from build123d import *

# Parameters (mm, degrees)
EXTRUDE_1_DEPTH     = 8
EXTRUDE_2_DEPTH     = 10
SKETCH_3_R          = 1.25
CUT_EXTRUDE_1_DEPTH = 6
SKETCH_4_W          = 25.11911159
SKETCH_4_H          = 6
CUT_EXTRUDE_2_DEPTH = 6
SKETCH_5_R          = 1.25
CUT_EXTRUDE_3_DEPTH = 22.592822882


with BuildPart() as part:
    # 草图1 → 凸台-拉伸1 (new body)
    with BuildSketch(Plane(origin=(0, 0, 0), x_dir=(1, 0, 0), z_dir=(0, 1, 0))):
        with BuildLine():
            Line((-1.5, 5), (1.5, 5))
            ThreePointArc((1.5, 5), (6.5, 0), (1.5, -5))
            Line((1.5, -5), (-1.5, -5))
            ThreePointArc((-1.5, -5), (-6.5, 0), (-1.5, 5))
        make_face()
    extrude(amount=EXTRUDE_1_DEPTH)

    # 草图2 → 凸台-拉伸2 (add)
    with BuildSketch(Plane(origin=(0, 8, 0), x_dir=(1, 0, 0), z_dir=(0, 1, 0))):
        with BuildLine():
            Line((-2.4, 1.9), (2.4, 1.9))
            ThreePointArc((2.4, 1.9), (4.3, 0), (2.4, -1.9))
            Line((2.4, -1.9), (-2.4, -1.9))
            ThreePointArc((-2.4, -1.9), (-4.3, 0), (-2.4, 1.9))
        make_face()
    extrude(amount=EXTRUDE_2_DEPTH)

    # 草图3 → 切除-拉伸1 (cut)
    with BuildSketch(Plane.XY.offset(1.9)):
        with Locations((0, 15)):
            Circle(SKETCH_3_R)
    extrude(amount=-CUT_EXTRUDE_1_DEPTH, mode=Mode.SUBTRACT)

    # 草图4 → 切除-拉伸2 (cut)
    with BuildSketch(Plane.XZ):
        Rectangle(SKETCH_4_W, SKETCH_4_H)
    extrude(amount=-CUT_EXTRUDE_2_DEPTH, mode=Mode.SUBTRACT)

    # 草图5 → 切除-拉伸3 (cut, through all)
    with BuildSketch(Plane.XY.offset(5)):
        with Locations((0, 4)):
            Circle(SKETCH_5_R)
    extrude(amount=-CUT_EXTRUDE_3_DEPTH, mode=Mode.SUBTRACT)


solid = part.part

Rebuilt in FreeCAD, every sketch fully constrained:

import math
import FreeCAD as App
import Part
import Sketcher

V = App.Vector


def add_polygon(sketch, points):
    """Adds a closed chain of lines whose ends are joined by coincident constraints."""
    first, n = sketch.GeometryCount, len(points)
    for a, b in zip(points, points[1:] + points[:1]):
        sketch.addGeometry(Part.LineSegment(App.Vector(*a, 0), App.Vector(*b, 0)), False)
    for i in range(n):
        sketch.addConstraint(Sketcher.Constraint("Coincident", first + i, 2, first + (i + 1) % n, 1))

doc = App.newDocument("Part")
body = doc.addObject("PartDesign::Body", "Body")

# Sketch on XZ plane
sketch1 = body.newObject("Sketcher::SketchObject", "Sketch")
sketch1.AttachmentSupport = (doc.getObject("XZ_Plane"), [""])
sketch1.MapMode = "FlatFace"
sketch1.addGeometry(Part.LineSegment(V(1.5, -5, 0), V(-1.5, -5, 0)), False)
sketch1.addGeometry(Part.ArcOfCircle(Part.Circle(V(-1.5, 0, 0), V(0, 0, 1), 5), math.radians(90), math.radians(270)), False)
sketch1.addGeometry(Part.LineSegment(V(-1.5, 5, 0), V(1.5, 5, 0)), False)
sketch1.addGeometry(Part.ArcOfCircle(Part.Circle(V(1.5, 0, 0), V(0, 0, 1), 5), math.radians(-90), math.radians(90)), False)
sketch1.addConstraint(Sketcher.Constraint("Tangent", 0, 2, 1, 2))
sketch1.addConstraint(Sketcher.Constraint("Tangent", 1, 1, 2, 1))
sketch1.addConstraint(Sketcher.Constraint("Tangent", 2, 2, 3, 2))
sketch1.addConstraint(Sketcher.Constraint("Tangent", 3, 1, 0, 1))
sketch1.addConstraint(Sketcher.Constraint("Horizontal", 0))
sketch1.addConstraint(Sketcher.Constraint("Horizontal", 2))
sketch1.addConstraint(Sketcher.Constraint("Symmetric", 1, 3, 3, 3, -1, 1))
sketch1.addConstraint(Sketcher.Constraint("Radius", 1, 5.0))
sketch1.addConstraint(Sketcher.Constraint("DistanceX", 0, 2, 0, 1, 3.0))
pad1 = body.newObject("PartDesign::Pad", "Pad")
pad1.Profile = sketch1
pad1.Length = 8
pad1.Reversed = True

# Sketch on XZ plane
sketch2 = body.newObject("Sketcher::SketchObject", "Sketch001")
sketch2.AttachmentSupport = (doc.getObject("XZ_Plane"), [""])
sketch2.MapMode = "FlatFace"
sketch2.AttachmentOffset = App.Placement(V(0, 0, -8), App.Rotation())
sketch2.addGeometry(Part.LineSegment(V(2.4, -1.9, 0), V(-2.4, -1.9, 0)), False)
sketch2.addGeometry(Part.ArcOfCircle(Part.Circle(V(-2.4, 0, 0), V(0, 0, 1), 1.9), math.radians(90), math.radians(270)), False)
sketch2.addGeometry(Part.LineSegment(V(-2.4, 1.9, 0), V(2.4, 1.9, 0)), False)
sketch2.addGeometry(Part.ArcOfCircle(Part.Circle(V(2.4, 0, 0), V(0, 0, 1), 1.9), math.radians(-90), math.radians(90)), False)
sketch2.addConstraint(Sketcher.Constraint("Tangent", 0, 2, 1, 2))
sketch2.addConstraint(Sketcher.Constraint("Tangent", 1, 1, 2, 1))
sketch2.addConstraint(Sketcher.Constraint("Tangent", 2, 2, 3, 2))
sketch2.addConstraint(Sketcher.Constraint("Tangent", 3, 1, 0, 1))
sketch2.addConstraint(Sketcher.Constraint("Horizontal", 0))
sketch2.addConstraint(Sketcher.Constraint("Horizontal", 2))
sketch2.addConstraint(Sketcher.Constraint("Symmetric", 1, 3, 3, 3, -1, 1))
sketch2.addConstraint(Sketcher.Constraint("Radius", 1, 1.9))
sketch2.addConstraint(Sketcher.Constraint("DistanceX", 0, 2, 0, 1, 4.8))
pad2 = body.newObject("PartDesign::Pad", "Pad001")
pad2.Profile = sketch2
pad2.Length = 10
pad2.Reversed = True

# Sketch on XY plane
sketch3 = body.newObject("Sketcher::SketchObject", "Sketch002")
sketch3.AttachmentSupport = (doc.getObject("XY_Plane"), [""])
sketch3.MapMode = "FlatFace"
sketch3.AttachmentOffset = App.Placement(V(0, 0, 1.9), App.Rotation())
sketch3.addGeometry(Part.Circle(V(0, 15, 0), V(0, 0, 1), 1.25), False)
sketch3.addConstraint(Sketcher.Constraint("PointOnObject", 0, 3, -2))
sketch3.addConstraint(Sketcher.Constraint("Diameter", 0, 2.5))
sketch3.addConstraint(Sketcher.Constraint("DistanceY", -1, 1, 0, 3, 15.0))
pocket1 = body.newObject("PartDesign::Pocket", "Pocket")
pocket1.Profile = sketch3
pocket1.Length = 6

# Sketch on XZ plane
sketch4 = body.newObject("Sketcher::SketchObject", "Sketch003")
sketch4.AttachmentSupport = (doc.getObject("XZ_Plane"), [""])
sketch4.MapMode = "FlatFace"
add_polygon(sketch4, [(-12.559556, 3), (-12.559556, -3), (12.559556, -3), (12.559556, 3)])  # lines 0-3
sketch4.addConstraint(Sketcher.Constraint("Vertical", 0))
sketch4.addConstraint(Sketcher.Constraint("Horizontal", 1))
sketch4.addConstraint(Sketcher.Constraint("Vertical", 2))
sketch4.addConstraint(Sketcher.Constraint("Horizontal", 3))
sketch4.addConstraint(Sketcher.Constraint("Symmetric", 0, 2, 2, 2, -1, 1))
sketch4.addConstraint(Sketcher.Constraint("DistanceY", 0, 2, 0, 1, 6.0))
sketch4.addConstraint(Sketcher.Constraint("DistanceX", 1, 1, 1, 2, 25.119112))
pocket2 = body.newObject("PartDesign::Pocket", "Pocket001")
pocket2.Profile = sketch4
pocket2.Length = 6

# Sketch on XY plane
sketch5 = body.newObject("Sketcher::SketchObject", "Sketch004")
sketch5.AttachmentSupport = (doc.getObject("XY_Plane"), [""])
sketch5.MapMode = "FlatFace"
sketch5.AttachmentOffset = App.Placement(V(0, 0, 5), App.Rotation())
sketch5.addGeometry(Part.Circle(V(0, 4, 0), V(0, 0, 1), 1.25), False)
sketch5.addConstraint(Sketcher.Constraint("PointOnObject", 0, 3, -2))
sketch5.addConstraint(Sketcher.Constraint("Diameter", 0, 2.5))
sketch5.addConstraint(Sketcher.Constraint("DistanceY", -1, 1, 0, 3, 4.0))
pocket3 = body.newObject("PartDesign::Pocket", "Pocket002")
pocket3.Profile = sketch5
pocket3.Type = "ThroughAll"

doc.recompute()
